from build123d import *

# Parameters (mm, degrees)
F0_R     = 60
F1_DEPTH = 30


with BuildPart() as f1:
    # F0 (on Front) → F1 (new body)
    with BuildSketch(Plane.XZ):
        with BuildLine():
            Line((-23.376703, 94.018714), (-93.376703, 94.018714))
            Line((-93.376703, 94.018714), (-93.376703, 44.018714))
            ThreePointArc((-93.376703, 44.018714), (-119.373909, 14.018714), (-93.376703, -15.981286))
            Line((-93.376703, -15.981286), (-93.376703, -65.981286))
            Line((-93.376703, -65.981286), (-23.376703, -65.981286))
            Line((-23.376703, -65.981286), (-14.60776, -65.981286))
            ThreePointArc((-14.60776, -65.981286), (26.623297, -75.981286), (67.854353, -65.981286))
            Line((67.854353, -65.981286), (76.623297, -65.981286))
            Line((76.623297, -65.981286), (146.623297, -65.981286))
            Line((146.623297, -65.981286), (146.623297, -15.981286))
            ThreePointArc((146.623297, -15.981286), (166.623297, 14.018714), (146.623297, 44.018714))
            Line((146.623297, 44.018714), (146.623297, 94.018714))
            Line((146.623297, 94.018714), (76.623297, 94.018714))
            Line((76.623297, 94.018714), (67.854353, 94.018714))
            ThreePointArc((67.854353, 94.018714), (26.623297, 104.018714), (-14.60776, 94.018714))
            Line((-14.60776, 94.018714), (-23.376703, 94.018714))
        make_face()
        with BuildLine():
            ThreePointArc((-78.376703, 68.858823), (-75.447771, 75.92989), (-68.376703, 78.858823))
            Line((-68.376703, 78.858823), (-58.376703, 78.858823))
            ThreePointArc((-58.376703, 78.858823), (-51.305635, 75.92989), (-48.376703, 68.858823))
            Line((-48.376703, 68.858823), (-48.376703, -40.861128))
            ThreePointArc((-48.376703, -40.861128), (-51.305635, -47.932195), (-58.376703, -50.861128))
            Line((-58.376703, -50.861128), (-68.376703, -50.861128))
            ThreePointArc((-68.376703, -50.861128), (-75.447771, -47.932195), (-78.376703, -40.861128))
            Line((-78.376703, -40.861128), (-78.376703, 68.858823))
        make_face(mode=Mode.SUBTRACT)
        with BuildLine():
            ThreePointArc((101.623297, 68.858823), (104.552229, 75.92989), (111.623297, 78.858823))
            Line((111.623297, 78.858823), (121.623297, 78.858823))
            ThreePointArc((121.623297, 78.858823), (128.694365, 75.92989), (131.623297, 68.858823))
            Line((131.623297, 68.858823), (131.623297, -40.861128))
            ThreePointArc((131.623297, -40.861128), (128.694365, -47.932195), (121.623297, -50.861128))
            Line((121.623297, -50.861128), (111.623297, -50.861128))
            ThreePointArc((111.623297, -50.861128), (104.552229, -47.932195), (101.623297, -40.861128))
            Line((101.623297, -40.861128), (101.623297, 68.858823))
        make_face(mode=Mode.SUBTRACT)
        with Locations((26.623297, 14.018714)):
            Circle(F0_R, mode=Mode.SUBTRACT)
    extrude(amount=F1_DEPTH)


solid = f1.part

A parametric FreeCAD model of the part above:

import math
import FreeCAD as App
import Part
import Sketcher
from FreeCAD import Vector
Q = App.Units.Quantity

doc = App.newDocument("Part")
body = doc.addObject("PartDesign::Body", "Body")

# Sketch on XZ plane
sketch1 = doc.addObject("Sketcher::SketchObject", "Sketch")
body.addObject(sketch1)
sketch1.AttachmentSupport = (doc.XZ_Plane, [""])
sketch1.MapMode = "FlatFace"
sketch1.addGeometry([
    Part.LineSegment(Vector(-93, 94, 0), Vector(-93, 44, 0)),  # 0
    Part.ArcOfCircle(Part.Circle(Vector(-89, 14, 0), Vector(0, 0, 1), 30), math.radians(98), math.radians(262)),  # 1
    Part.LineSegment(Vector(-93, -16, 0), Vector(-93, -66, 0)),  # 2
    Part.LineSegment(Vector(-93, -66, 0), Vector(-15, -66, 0)),  # 3
    Part.ArcOfCircle(Part.Circle(Vector(27, 14, 0), Vector(0, 0, 1), 90), math.radians(-117), math.radians(-63)),  # 4
    Part.LineSegment(Vector(68, -66, 0), Vector(147, -66, 0)),  # 5
    Part.LineSegment(Vector(147, -66, 0), Vector(147, -16, 0)),  # 6
    Part.ArcOfCircle(Part.Circle(Vector(134, 14, 0), Vector(0, 0, 1), 32), math.radians(-67), math.radians(67)),  # 7
    Part.LineSegment(Vector(147, 44, 0), Vector(147, 94, 0)),  # 8
    Part.LineSegment(Vector(147, 94, 0), Vector(68, 94, 0)),  # 9
    Part.ArcOfCircle(Part.Circle(Vector(27, 14, 0), Vector(0, 0, 1), 90), math.radians(63), math.radians(117)),  # 10
    Part.LineSegment(Vector(-15, 94, 0), Vector(-93, 94, 0)),  # 11
    Part.LineSegment(Vector(-78, -41, 0), Vector(-78, 69, 0)),  # 12
    Part.ArcOfCircle(Part.Circle(Vector(-68, 69, 0), Vector(0, 0, 1), 10), math.radians(90), math.radians(180)),  # 13
    Part.LineSegment(Vector(-68, 79, 0), Vector(-58, 79, 0)),  # 14
    Part.ArcOfCircle(Part.Circle(Vector(-58, 69, 0), Vector(0, 0, 1), 10), math.radians(0), math.radians(90)),  # 15
    Part.LineSegment(Vector(-48, 69, 0), Vector(-48, -41, 0)),  # 16
    Part.ArcOfCircle(Part.Circle(Vector(-58, -41, 0), Vector(0, 0, 1), 10), math.radians(-90), math.radians(0)),  # 17
    Part.LineSegment(Vector(-58, -51, 0), Vector(-68, -51, 0)),  # 18
    Part.ArcOfCircle(Part.Circle(Vector(-68, -41, 0), Vector(0, 0, 1), 10), math.radians(-180), math.radians(-90)),  # 19
    Part.Circle(Vector(27, 14, 0), Vector(0, 0, 1), 60),  # 20
    Part.LineSegment(Vector(102, -41, 0), Vector(102, 69, 0)),  # 21
    Part.ArcOfCircle(Part.Circle(Vector(112, 69, 0), Vector(0, 0, 1), 10), math.radians(90), math.radians(180)),  # 22
    Part.LineSegment(Vector(112, 79, 0), Vector(122, 79, 0)),  # 23
    Part.ArcOfCircle(Part.Circle(Vector(122, 69, 0), Vector(0, 0, 1), 10), math.radians(0), math.radians(90)),  # 24
    Part.LineSegment(Vector(132, 69, 0), Vector(132, -41, 0)),  # 25
    Part.ArcOfCircle(Part.Circle(Vector(122, -41, 0), Vector(0, 0, 1), 10), math.radians(-90), math.radians(0)),  # 26
    Part.LineSegment(Vector(122, -51, 0), Vector(112, -51, 0)),  # 27
    Part.ArcOfCircle(Part.Circle(Vector(112, -41, 0), Vector(0, 0, 1), 10), math.radians(-180), math.radians(-90)),  # 28
], False)
sketch1.addConstraint([
    Sketcher.Constraint("Coincident", 0, 2, 1, 1),
    Sketcher.Constraint("Coincident", 1, 2, 2, 1),
    Sketcher.Constraint("Coincident", 2, 2, 3, 1),
    Sketcher.Constraint("Coincident", 3, 2, 4, 1),
    Sketcher.Constraint("Coincident", 4, 2, 5, 1),
    Sketcher.Constraint("Coincident", 5, 2, 6, 1),
    Sketcher.Constraint("Coincident", 6, 2, 7, 1),
    Sketcher.Constraint("Coincident", 7, 2, 8, 1),
    Sketcher.Constraint("Coincident", 8, 2, 9, 1),
    Sketcher.Constraint("Coincident", 9, 2, 10, 1),
    Sketcher.Constraint("Coincident", 10, 2, 11, 1),
    Sketcher.Constraint("Coincident", 11, 2, 0, 1),
    Sketcher.Constraint("Tangent", 12, 2, 13, 2),
    Sketcher.Constraint("Tangent", 13, 1, 14, 1),
    Sketcher.Constraint("Tangent", 14, 2, 15, 2),
    Sketcher.Constraint("Tangent", 15, 1, 16, 1),
    Sketcher.Constraint("Tangent", 16, 2, 17, 2),
    Sketcher.Constraint("Tangent", 17, 1, 18, 1),
    Sketcher.Constraint("Tangent", 18, 2, 19, 2),
    Sketcher.Constraint("Tangent", 19, 1, 12, 1),
    Sketcher.Constraint("Tangent", 21, 2, 22, 2),
    Sketcher.Constraint("Tangent", 22, 1, 23, 1),
    Sketcher.Constraint("Tangent", 23, 2, 24, 2),
    Sketcher.Constraint("Tangent", 24, 1, 25, 1),
    Sketcher.Constraint("Tangent", 25, 2, 26, 2),
    Sketcher.Constraint("Tangent", 26, 1, 27, 1),
    Sketcher.Constraint("Tangent", 27, 2, 28, 2),
    Sketcher.Constraint("Tangent", 28, 1, 21, 1),
    Sketcher.Constraint("Vertical", 0),
    Sketcher.Constraint("Vertical", 2),
    Sketcher.Constraint("Horizontal", 3),
    Sketcher.Constraint("Horizontal", 5),
    Sketcher.Constraint("Vertical", 6),
    Sketcher.Constraint("Vertical", 8),
    Sketcher.Constraint("Horizontal", 9),
    Sketcher.Constraint("Horizontal", 11),
    Sketcher.Constraint("Vertical", 12),
    Sketcher.Constraint("Horizontal", 14),
    Sketcher.Constraint("Vertical", 16),
    Sketcher.Constraint("Horizontal", 18),
    Sketcher.Constraint("Vertical", 21),
    Sketcher.Constraint("Horizontal", 23),
    Sketcher.Constraint("Vertical", 25),
    Sketcher.Constraint("Horizontal", 27),
    Sketcher.Constraint("Coincident", 10, 3, 4, 3),
    Sketcher.Constraint("Coincident", 20, 3, 4, 3),
    Sketcher.Constraint("Equal", 4, 10),
    Sketcher.Constraint("Equal", 13, 15),
    Sketcher.Constraint("Equal", 15, 17),
    Sketcher.Constraint("Equal", 17, 19),
    Sketcher.Constraint("Equal", 19, 22),
    Sketcher.Constraint("Equal", 22, 24),
    Sketcher.Constraint("Equal", 24, 26),
    Sketcher.Constraint("Equal", 26, 28),
    Sketcher.Constraint("Horizontal", 1, 3, 4, 3),
    Sketcher.Constraint("Horizontal", 4, 3, 7, 3),
    Sketcher.Constraint("Horizontal", 15, 3, 22, 3),
    Sketcher.Constraint("Horizontal", 19, 3, 26, 3),
    Sketcher.Constraint("Horizontal", 3, 2, 4, 2),
    Sketcher.Constraint("Horizontal", 1, 2, 6, 2),
    Sketcher.Constraint("Horizontal", 0, 2, 7, 2),
    Sketcher.Constraint("Horizontal", 9, 2, 10, 2),
    Sketcher.Constraint("Vertical", 0, 2, 1, 2),
    Sketcher.Constraint("Vertical", 4, 2, 9, 2),
    Sketcher.Constraint("Equal", 3, 5),
    Sketcher.Constraint("Equal", 18, 23),
    Sketcher.Constraint("Diameter", 20, Q("120 mm")),
    Sketcher.Constraint("Radius", 4, Q("90.000001 mm")),
    Sketcher.Constraint("Radius", 13, Q("10.000001 mm")),
    Sketcher.Constraint("Radius", 7, Q("32.5 mm")),
    Sketcher.Constraint("DistanceX", 14, 1, 14, 2, Q("10 mm")),
    Sketcher.Constraint("DistanceY", 0, 2, 0, 1, Q("50 mm")),
    Sketcher.Constraint("DistanceX", 13, 3, 4, 3, Q("94.999998 mm")),
    Sketcher.Constraint("DistanceX", 4, 3, 22, 3, Q("85.000002 mm")),
    Sketcher.Constraint("DistanceY", 1, 3, 0, 2, Q("30 mm")),
    Sketcher.Constraint("DistanceX", 0, 2, 13, 3, Q("25.000001 mm")),
    Sketcher.Constraint("Radius", 1, Q("30.308155 mm")),
    Sketcher.Constraint("DistanceY", 12, 1, 12, 2, Q("109.719951 mm")),
    Sketcher.Constraint("DistanceX", 13, 3, -1, 1, Q("68.376702 mm")),
    Sketcher.Constraint("DistanceY", -1, 1, 13, 3, Q("68.858822 mm")),
    Sketcher.Constraint("DistanceY", 10, 3, 13, 3, Q("54.840109 mm")),
])
pad1 = doc.addObject("PartDesign::Pad", "Pad")
body.addObject(pad1)
pad1.Profile = sketch1
pad1.Length = 30

doc.recompute()
